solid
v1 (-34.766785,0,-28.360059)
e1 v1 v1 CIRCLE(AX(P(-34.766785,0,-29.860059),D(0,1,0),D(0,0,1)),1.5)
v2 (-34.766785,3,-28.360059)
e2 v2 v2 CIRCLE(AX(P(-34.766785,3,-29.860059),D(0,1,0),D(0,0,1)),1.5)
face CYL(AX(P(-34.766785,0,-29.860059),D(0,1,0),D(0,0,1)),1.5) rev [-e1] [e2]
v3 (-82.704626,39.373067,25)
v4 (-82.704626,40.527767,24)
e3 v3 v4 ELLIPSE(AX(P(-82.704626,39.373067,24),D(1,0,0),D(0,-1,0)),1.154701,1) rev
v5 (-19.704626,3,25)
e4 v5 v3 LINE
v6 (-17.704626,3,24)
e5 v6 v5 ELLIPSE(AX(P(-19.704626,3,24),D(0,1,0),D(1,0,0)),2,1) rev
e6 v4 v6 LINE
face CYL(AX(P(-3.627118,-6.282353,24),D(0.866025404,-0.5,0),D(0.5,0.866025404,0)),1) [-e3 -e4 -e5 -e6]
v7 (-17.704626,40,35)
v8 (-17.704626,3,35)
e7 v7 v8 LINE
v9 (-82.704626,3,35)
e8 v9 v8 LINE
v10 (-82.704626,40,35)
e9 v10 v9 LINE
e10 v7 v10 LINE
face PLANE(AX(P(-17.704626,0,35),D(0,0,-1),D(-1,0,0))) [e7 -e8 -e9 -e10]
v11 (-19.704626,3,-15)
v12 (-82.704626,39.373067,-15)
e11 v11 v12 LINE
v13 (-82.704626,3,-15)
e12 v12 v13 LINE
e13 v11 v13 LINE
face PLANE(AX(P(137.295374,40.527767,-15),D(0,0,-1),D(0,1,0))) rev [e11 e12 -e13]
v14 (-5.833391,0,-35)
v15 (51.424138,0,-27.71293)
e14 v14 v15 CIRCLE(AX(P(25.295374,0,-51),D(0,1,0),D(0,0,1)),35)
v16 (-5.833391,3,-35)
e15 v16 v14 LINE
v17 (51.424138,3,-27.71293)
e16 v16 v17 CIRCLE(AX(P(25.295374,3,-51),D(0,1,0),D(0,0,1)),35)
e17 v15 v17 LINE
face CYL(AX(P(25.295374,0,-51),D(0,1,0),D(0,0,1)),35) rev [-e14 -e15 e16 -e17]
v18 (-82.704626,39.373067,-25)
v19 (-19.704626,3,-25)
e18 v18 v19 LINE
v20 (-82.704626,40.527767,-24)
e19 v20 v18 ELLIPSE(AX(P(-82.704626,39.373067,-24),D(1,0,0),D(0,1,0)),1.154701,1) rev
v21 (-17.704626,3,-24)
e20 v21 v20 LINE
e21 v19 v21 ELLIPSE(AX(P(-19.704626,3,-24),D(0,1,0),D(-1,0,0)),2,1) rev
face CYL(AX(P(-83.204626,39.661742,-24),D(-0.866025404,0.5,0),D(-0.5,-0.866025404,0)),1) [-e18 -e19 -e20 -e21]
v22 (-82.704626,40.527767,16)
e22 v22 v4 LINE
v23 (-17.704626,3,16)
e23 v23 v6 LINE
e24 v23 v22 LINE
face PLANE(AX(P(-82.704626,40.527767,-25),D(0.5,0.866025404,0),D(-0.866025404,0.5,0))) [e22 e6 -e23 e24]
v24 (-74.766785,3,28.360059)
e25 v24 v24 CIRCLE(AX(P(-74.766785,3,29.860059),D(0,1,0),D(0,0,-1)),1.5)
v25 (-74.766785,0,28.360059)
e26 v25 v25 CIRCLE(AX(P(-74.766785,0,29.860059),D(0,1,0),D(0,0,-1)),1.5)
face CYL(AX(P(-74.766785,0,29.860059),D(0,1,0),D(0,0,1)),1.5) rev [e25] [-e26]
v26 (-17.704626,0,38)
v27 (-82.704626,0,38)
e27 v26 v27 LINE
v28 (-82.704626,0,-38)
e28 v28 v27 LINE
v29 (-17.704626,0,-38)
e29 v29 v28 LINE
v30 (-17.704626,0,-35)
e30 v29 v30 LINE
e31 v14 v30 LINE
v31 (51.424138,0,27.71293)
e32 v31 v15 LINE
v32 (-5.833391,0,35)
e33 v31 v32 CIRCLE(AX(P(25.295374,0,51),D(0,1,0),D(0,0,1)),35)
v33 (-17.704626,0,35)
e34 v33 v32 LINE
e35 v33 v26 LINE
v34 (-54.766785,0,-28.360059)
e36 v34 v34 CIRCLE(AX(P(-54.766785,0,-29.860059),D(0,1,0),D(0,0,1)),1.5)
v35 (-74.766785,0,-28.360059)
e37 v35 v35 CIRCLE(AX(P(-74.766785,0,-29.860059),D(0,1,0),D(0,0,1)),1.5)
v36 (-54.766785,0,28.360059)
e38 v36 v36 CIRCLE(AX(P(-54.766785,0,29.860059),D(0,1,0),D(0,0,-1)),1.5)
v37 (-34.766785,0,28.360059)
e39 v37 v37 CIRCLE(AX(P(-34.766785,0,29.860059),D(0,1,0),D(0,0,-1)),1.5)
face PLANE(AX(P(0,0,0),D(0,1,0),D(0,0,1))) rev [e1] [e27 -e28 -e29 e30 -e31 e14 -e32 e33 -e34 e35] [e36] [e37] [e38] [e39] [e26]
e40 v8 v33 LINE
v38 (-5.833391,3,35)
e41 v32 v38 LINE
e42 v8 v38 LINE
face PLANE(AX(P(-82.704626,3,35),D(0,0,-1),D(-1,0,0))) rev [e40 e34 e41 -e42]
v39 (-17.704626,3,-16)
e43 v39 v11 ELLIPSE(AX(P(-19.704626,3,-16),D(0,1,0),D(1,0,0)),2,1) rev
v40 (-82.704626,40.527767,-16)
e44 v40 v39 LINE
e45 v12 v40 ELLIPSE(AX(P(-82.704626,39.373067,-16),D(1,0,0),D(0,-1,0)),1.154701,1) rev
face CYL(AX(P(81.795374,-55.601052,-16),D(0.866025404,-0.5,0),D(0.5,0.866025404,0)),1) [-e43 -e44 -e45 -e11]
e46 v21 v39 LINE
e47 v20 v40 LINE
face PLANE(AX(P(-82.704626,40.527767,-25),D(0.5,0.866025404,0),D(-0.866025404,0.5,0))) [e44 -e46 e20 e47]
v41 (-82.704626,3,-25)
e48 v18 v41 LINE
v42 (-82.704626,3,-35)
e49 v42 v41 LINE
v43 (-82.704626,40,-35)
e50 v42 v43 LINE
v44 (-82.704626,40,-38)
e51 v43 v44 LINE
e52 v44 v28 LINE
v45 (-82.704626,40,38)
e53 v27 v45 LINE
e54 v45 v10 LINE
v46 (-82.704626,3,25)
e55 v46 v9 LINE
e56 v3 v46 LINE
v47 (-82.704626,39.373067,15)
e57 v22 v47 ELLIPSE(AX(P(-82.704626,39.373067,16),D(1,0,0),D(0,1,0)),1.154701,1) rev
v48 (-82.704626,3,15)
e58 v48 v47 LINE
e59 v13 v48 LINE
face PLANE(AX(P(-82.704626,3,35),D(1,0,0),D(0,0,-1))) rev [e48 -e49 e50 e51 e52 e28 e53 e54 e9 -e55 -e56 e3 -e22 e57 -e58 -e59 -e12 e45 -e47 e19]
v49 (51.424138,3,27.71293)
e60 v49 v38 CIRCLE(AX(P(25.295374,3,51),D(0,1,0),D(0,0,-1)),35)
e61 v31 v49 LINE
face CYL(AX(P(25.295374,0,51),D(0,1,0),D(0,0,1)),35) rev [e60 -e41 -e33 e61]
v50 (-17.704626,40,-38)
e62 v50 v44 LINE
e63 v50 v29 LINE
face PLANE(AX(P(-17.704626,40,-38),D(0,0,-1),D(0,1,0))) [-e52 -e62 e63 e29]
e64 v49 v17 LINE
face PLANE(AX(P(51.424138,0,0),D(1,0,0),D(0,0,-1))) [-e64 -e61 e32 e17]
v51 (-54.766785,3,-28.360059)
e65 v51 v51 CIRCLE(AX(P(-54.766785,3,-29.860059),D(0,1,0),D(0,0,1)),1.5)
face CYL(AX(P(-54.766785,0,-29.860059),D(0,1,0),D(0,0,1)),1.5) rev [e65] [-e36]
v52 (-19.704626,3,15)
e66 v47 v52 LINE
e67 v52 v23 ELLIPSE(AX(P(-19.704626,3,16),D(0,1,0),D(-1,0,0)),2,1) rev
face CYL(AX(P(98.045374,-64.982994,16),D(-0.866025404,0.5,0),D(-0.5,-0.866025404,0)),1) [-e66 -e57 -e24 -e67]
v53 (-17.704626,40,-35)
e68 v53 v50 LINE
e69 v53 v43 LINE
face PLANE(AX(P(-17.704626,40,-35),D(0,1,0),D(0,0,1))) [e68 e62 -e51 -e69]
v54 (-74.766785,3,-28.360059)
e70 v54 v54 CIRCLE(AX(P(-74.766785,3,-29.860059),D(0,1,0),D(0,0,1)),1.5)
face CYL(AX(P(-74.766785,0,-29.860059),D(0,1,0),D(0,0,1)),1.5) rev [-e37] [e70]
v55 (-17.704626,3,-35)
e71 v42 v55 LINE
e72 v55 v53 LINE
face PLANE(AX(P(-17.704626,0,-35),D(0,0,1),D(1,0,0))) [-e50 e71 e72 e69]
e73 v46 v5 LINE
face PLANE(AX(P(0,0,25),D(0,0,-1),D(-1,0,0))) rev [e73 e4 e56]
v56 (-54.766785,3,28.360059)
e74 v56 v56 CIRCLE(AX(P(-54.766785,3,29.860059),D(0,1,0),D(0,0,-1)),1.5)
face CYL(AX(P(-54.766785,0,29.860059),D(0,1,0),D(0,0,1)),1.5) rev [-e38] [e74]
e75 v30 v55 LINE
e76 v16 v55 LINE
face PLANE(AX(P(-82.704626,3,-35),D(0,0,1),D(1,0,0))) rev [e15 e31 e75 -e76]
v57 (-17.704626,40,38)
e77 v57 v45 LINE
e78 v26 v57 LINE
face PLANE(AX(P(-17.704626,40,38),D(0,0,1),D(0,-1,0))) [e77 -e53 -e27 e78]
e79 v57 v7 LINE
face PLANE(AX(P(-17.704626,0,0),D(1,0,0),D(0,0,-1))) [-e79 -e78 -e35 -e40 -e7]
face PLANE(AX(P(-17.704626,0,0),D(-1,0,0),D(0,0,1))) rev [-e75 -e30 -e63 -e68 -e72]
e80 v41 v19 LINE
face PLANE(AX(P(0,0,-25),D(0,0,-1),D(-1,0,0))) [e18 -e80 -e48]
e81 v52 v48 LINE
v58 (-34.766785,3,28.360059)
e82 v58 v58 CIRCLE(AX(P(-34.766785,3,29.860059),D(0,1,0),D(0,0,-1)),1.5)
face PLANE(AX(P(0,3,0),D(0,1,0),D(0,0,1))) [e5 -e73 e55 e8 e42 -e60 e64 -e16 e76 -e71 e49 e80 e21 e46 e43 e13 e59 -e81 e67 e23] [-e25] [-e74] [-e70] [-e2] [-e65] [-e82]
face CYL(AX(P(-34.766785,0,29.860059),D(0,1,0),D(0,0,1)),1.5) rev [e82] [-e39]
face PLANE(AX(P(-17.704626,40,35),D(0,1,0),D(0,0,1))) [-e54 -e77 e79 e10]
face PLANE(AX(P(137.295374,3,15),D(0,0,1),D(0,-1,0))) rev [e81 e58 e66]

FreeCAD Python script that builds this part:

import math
import FreeCAD as App
import Part
import Sketcher

V = App.Vector
Q = App.Units.Quantity


def edges_at(feature, points):
    """Names of the edges that pass closest to the given points."""
    edges = feature.Shape.Edges
    near = lambda p: min(range(len(edges)), key=lambda i: edges[i].distToShape(Part.Vertex(*p))[0])
    return sorted({f"Edge{near(p) + 1}" for p in points})


def add_polygon(sketch, points):
    """Adds a closed chain of lines whose ends are joined by coincident constraints."""
    first, n = sketch.GeometryCount, len(points)
    for a, b in zip(points, points[1:] + points[:1]):
        sketch.addGeometry(Part.LineSegment(App.Vector(*a, 0), App.Vector(*b, 0)), False)
    for i in range(n):
        sketch.addConstraint(Sketcher.Constraint("Coincident", first + i, 2, first + (i + 1) % n, 1))

doc = App.newDocument("Part")
body = doc.addObject("PartDesign::Body", "Body")

sketch1 = body.newObject("Sketcher::SketchObject", "Sketch")
sketch1.AttachmentSupport = (doc.getObject("XZ_Plane"), [""])
sketch1.MapMode = "FlatFace"
add_polygon(sketch1, [(-82.704626, -35), (-82.704626, 35), (137.295374, 35), (137.295374, -35)])
sketch1.addConstraint(Sketcher.Constraint("Vertical", 0))
sketch1.addConstraint(Sketcher.Constraint("Horizontal", 1))
sketch1.addConstraint(Sketcher.Constraint("Vertical", 2))
sketch1.addConstraint(Sketcher.Constraint("Horizontal", 3))
sketch1.addConstraint(Sketcher.Constraint("DistanceX", 1, 1, 1, 2, Q("220 mm")))
sketch1.addConstraint(Sketcher.Constraint("DistanceY", 0, 1, 0, 2, Q("70 mm")))
sketch1.addConstraint(Sketcher.Constraint("DistanceY", -1, 1, 0, 2, Q("35 mm")))
sketch1.addConstraint(Sketcher.Constraint("DistanceX", 0, 2, -1, 1, Q("82.704626 mm")))
pad1 = body.newObject("PartDesign::Pad", "Pad")
pad1.Profile = sketch1
pad1.Length = 3
pad1.Reversed = True

sketch2 = body.newObject("Sketcher::SketchObject", "Sketch001")
sketch2.AttachmentSupport = (doc.getObject("XY_Plane"), [""])
sketch2.MapMode = "FlatFace"
add_polygon(sketch2, [(-82.704626, 40.527767), (-82.704626, 3), (-17.704626, 3)])
sketch2.addConstraint(Sketcher.Constraint("Vertical", 0))
sketch2.addConstraint(Sketcher.Constraint("Horizontal", 1))
sketch2.addConstraint(Sketcher.Constraint("DistanceX", 1, 1, 1, 2, Q("65 mm")))
sketch2.addConstraint(Sketcher.Constraint("Angle", 2, Q("150 deg")))
sketch2.addConstraint(Sketcher.Constraint("DistanceY", -1, 1, 0, 2, Q("3 mm")))
sketch2.addConstraint(Sketcher.Constraint("DistanceX", 0, 2, -1, 1, Q("82.704626 mm")))
pad2 = body.newObject("PartDesign::Pad", "Pad001")
pad2.Profile = sketch2
pad2.Type = "TwoLengths"
pad2.Length = 25
pad2.Length2 = 25

sketch3 = body.newObject("Sketcher::SketchObject", "Sketch002")
sketch3.AttachmentSupport = (doc.getObject("YZ_Plane"), [""])
sketch3.MapMode = "FlatFace"
sketch3.AttachmentOffset = App.Placement(V(0, 0, -82.704626), App.Rotation())
add_polygon(sketch3, [(40.527767, -15), (3, -15), (3, 15), (40.527767, 15)])
sketch3.addConstraint(Sketcher.Constraint("Horizontal", 0))
sketch3.addConstraint(Sketcher.Constraint("Vertical", 1))
sketch3.addConstraint(Sketcher.Constraint("Horizontal", 2))
sketch3.addConstraint(Sketcher.Constraint("Vertical", 3))
sketch3.addConstraint(Sketcher.Constraint("DistanceY", 1, 1, 1, 2, Q("30 mm")))
sketch3.addConstraint(Sketcher.Constraint("DistanceX", -1, 1, 0, 2, Q("3 mm")))
sketch3.addConstraint(Sketcher.Constraint("DistanceY", 0, 2, -1, 1, Q("15 mm")))
sketch3.addConstraint(Sketcher.Constraint("DistanceX", 0, 2, 0, 1, Q("37.527767 mm")))
pocket1 = body.newObject("PartDesign::Pocket", "Pocket")
pocket1.Profile = sketch3
pocket1.Type = "ThroughAll"
pocket1.Reversed = True

sketch4 = body.newObject("Sketcher::SketchObject", "Sketch003")
sketch4.AttachmentSupport = (doc.getObject("XZ_Plane"), [""])
sketch4.MapMode = "FlatFace"
sketch4.AttachmentOffset = App.Placement(V(0, 0, -3), App.Rotation())
sketch4.addGeometry(Part.Circle(V(25.295374, -51, 0), V(0, 0, 1), 35), False)
sketch4.addGeometry(Part.Circle(V(25.295374, 51, 0), V(0, 0, 1), 35), False)
sketch4.addConstraint(Sketcher.Constraint("Equal", 0, 1))
sketch4.addConstraint(Sketcher.Constraint("Symmetric", 0, 3, 1, 3, -1))
sketch4.addConstraint(Sketcher.Constraint("Diameter", 0, Q("70 mm")))
sketch4.addConstraint(Sketcher.Constraint("DistanceY", 0, 3, -1, 1, Q("51 mm")))
sketch4.addConstraint(Sketcher.Constraint("DistanceX", -1, 1, 0, 3, Q("25.295374 mm")))
pocket2 = body.newObject("PartDesign::Pocket", "Pocket001")
pocket2.Profile = sketch4
pocket2.Type = "ThroughAll"
pocket2.Reversed = True

sketch5 = body.newObject("Sketcher::SketchObject", "Sketch004")
sketch5.AttachmentSupport = (doc.getObject("YZ_Plane"), [""])
sketch5.MapMode = "FlatFace"
sketch5.AttachmentOffset = App.Placement(V(0, 0, -82.704626), App.Rotation())
add_polygon(sketch5, [(40, 35), (0, 35), (0, 38), (40, 38)])
add_polygon(sketch5, [(40, -38), (0, -38), (0, -35), (40, -35)])
sketch5.addConstraint(Sketcher.Constraint("Horizontal", 0))
sketch5.addConstraint(Sketcher.Constraint("Vertical", 1))
sketch5.addConstraint(Sketcher.Constraint("Horizontal", 2))
sketch5.addConstraint(Sketcher.Constraint("Vertical", 3))
sketch5.addConstraint(Sketcher.Constraint("Horizontal", 4))
sketch5.addConstraint(Sketcher.Constraint("Vertical", 5))
sketch5.addConstraint(Sketcher.Constraint("Horizontal", 6))
sketch5.addConstraint(Sketcher.Constraint("Vertical", 7))
sketch5.addConstraint(Sketcher.Constraint("Symmetric", 1, 2, 4, 2, -1, 1))
sketch5.addConstraint(Sketcher.Constraint("Symmetric", 0, 2, 5, 2, -1))
sketch5.addConstraint(Sketcher.Constraint("Vertical", 3, 2, 6, 2))
sketch5.addConstraint(Sketcher.Constraint("DistanceX", 0, 2, 0, 1, Q("40 mm")))
sketch5.addConstraint(Sketcher.Constraint("DistanceY", 1, 1, 1, 2, Q("3 mm")))
sketch5.addConstraint(Sketcher.Constraint("DistanceY", -1, 1, 0, 2, Q("35 mm")))
pad3 = body.newObject("PartDesign::Pad", "Pad002")
pad3.Profile = sketch5
pad3.Length = 65

sketch6 = body.newObject("Sketcher::SketchObject", "Sketch005")
sketch6.AttachmentSupport = (doc.getObject("XZ_Plane"), [""])
sketch6.MapMode = "FlatFace"
sketch6.AttachmentOffset = App.Placement(V(0, 0, -3), App.Rotation())
sketch6.addGeometry(Part.Circle(V(-74.766785, -29.860059, 0), V(0, 0, 1), 1.5), False)
sketch6.addGeometry(Part.Circle(V(-54.766785, -29.860059, 0), V(0, 0, 1), 1.5), False)
sketch6.addGeometry(Part.Circle(V(-34.766785, -29.860059, 0), V(0, 0, 1), 1.5), False)
sketch6.addGeometry(Part.Circle(V(-34.766785, 29.860059, 0), V(0, 0, 1), 1.5), False)
sketch6.addGeometry(Part.Circle(V(-54.766785, 29.860059, 0), V(0, 0, 1), 1.5), False)
sketch6.addGeometry(Part.Circle(V(-74.766785, 29.860059, 0), V(0, 0, 1), 1.5), False)
sketch6.addGeometry(Part.Circle(V(68.031562, -22, 0), V(0, 0, 1), 1.5), False)
sketch6.addGeometry(Part.Circle(V(88.031562, -22, 0), V(0, 0, 1), 1.5), False)
sketch6.addGeometry(Part.Circle(V(108.031562, -22, 0), V(0, 0, 1), 1.5), False)
sketch6.addGeometry(Part.Circle(V(108.031562, 22, 0), V(0, 0, 1), 1.5), False)
sketch6.addGeometry(Part.Circle(V(88.031562, 22, 0), V(0, 0, 1), 1.5), False)
sketch6.addGeometry(Part.Circle(V(68.031562, 22, 0), V(0, 0, 1), 1.5), False)
sketch6.addGeometry(Part.Circle(V(128.031562, -22, 0), V(0, 0, 1), 1.5), False)
sketch6.addGeometry(Part.Circle(V(128.031562, 22, 0), V(0, 0, 1), 1.5), False)
sketch6.addConstraint(Sketcher.Constraint("Equal", 0, 1))
sketch6.addConstraint(Sketcher.Constraint("Equal", 1, 2))
sketch6.addConstraint(Sketcher.Constraint("Equal", 2, 3))
sketch6.addConstraint(Sketcher.Constraint("Equal", 3, 4))
sketch6.addConstraint(Sketcher.Constraint("Equal", 4, 5))
sketch6.addConstraint(Sketcher.Constraint("Equal", 5, 6))
sketch6.addConstraint(Sketcher.Constraint("Equal", 6, 7))
sketch6.addConstraint(Sketcher.Constraint("Equal", 7, 8))
sketch6.addConstraint(Sketcher.Constraint("Equal", 8, 9))
sketch6.addConstraint(Sketcher.Constraint("Equal", 9, 10))
sketch6.addConstraint(Sketcher.Constraint("Equal", 10, 11))
sketch6.addConstraint(Sketcher.Constraint("Equal", 11, 12))
sketch6.addConstraint(Sketcher.Constraint("Equal", 12, 13))
sketch6.addConstraint(Sketcher.Constraint("Symmetric", 2, 3, 3, 3, -1))
sketch6.addConstraint(Sketcher.Constraint("Symmetric", 1, 3, 4, 3, -1))
sketch6.addConstraint(Sketcher.Constraint("Symmetric", 0, 3, 5, 3, -1))
sketch6.addConstraint(Sketcher.Constraint("Symmetric", 8, 3, 9, 3, -1))
sketch6.addConstraint(Sketcher.Constraint("Symmetric", 7, 3, 10, 3, -1))
sketch6.addConstraint(Sketcher.Constraint("Symmetric", 6, 3, 11, 3, -1))
sketch6.addConstraint(Sketcher.Constraint("Symmetric", 12, 3, 13, 3, -1))
sketch6.addConstraint(Sketcher.Constraint("Horizontal", 0, 3, 1, 3))
sketch6.addConstraint(Sketcher.Constraint("Horizontal", 1, 3, 2, 3))
sketch6.addConstraint(Sketcher.Constraint("Horizontal", 6, 3, 7, 3))
sketch6.addConstraint(Sketcher.Constraint("Horizontal", 7, 3, 8, 3))
sketch6.addConstraint(Sketcher.Constraint("Horizontal", 8, 3, 12, 3))
sketch6.addConstraint(Sketcher.Constraint("Diameter", 0, Q("3 mm")))
sketch6.addConstraint(Sketcher.Constraint("DistanceY", 6, 3, -1, 1, Q("22 mm")))
sketch6.addConstraint(Sketcher.Constraint("DistanceX", 0, 3, 1, 3, Q("20 mm")))
sketch6.addConstraint(Sketcher.Constraint("DistanceX", 1, 3, 2, 3, Q("20 mm")))
sketch6.addConstraint(Sketcher.Constraint("DistanceX", 6, 3, 7, 3, Q("20 mm")))
sketch6.addConstraint(Sketcher.Constraint("DistanceX", 7, 3, 8, 3, Q("20 mm")))
sketch6.addConstraint(Sketcher.Constraint("DistanceX", 8, 3, 12, 3, Q("20 mm")))
sketch6.addConstraint(Sketcher.Constraint("DistanceY", 0, 3, -1, 1, Q("29.860059 mm")))
sketch6.addConstraint(Sketcher.Constraint("DistanceX", 0, 3, -1, 1, Q("74.766785 mm")))
sketch6.addConstraint(Sketcher.Constraint("DistanceX", -1, 1, 6, 3, Q("68.031562 mm")))
pocket3 = body.newObject("PartDesign::Pocket", "Pocket002")
pocket3.Profile = sketch6
pocket3.Type = "ThroughAll"
pocket3.Reversed = True
doc.recompute()

fillet = body.newObject("PartDesign::Fillet", "Fillet")
fillet.Base = (pocket3, edges_at(pocket3, [
    (-50.205, 21.764, -25),
    (-50.205, 21.764, 25),
    (-50.205, 21.764, -15),
    (-50.205, 21.764, 15),
]))
fillet.Radius = 1

sketch7 = body.newObject("Sketcher::SketchObject", "Sketch006")
sketch7.AttachmentSupport = (doc.getObject("XZ_Plane"), [""])
sketch7.MapMode = "FlatFace"
sketch7.AttachmentOffset = App.Placement(V(0, 0, -3), App.Rotation())
sketch7.addGeometry(Part.LineSegment(V(51.424138, -27.71293, 0), V(51.424138, 27.71293, 0)), False)
sketch7.addGeometry(Part.ArcOfCircle(Part.Circle(V(25.295374, 51, 0), V(0, 0, 1), 35), math.radians(-41.708788), math.radians(-27.202894)), False)
sketch7.addGeometry(Part.LineSegment(V(56.424138, 35, 0), V(137.295374, 35, 0)), False)
sketch7.addGeometry(Part.LineSegment(V(137.295374, 35, 0), V(137.295374, -35, 0)), False)
sketch7.addGeometry(Part.LineSegment(V(137.295374, -35, 0), V(56.424138, -35, 0)), False)
sketch7.addGeometry(Part.ArcOfCircle(Part.Circle(V(25.295374, -51, 0), V(0, 0, 1), 35), math.radians(27.202894), math.radians(41.708788)), False)
sketch7.addGeometry(Part.Circle(V(68.031562, 22, 0), V(0, 0, 1), 1.5), False)
sketch7.addGeometry(Part.Circle(V(88.031562, 22, 0), V(0, 0, 1), 1.5), False)
sketch7.addGeometry(Part.Circle(V(108.031562, 22, 0), V(0, 0, 1), 1.5), False)
sketch7.addGeometry(Part.Circle(V(128.031562, 22, 0), V(0, 0, 1), 1.5), False)
sketch7.addGeometry(Part.Circle(V(68.031562, -22, 0), V(0, 0, 1), 1.5), False)
sketch7.addGeometry(Part.Circle(V(88.031562, -22, 0), V(0, 0, 1), 1.5), False)
sketch7.addGeometry(Part.Circle(V(108.031562, -22, 0), V(0, 0, 1), 1.5), False)
sketch7.addGeometry(Part.Circle(V(128.031562, -22, 0), V(0, 0, 1), 1.5), False)
sketch7.addConstraint(Sketcher.Constraint("Coincident", 0, 2, 1, 1))
sketch7.addConstraint(Sketcher.Constraint("Coincident", 1, 2, 2, 1))
sketch7.addConstraint(Sketcher.Constraint("Coincident", 2, 2, 3, 1))
sketch7.addConstraint(Sketcher.Constraint("Coincident", 3, 2, 4, 1))
sketch7.addConstraint(Sketcher.Constraint("Coincident", 4, 2, 5, 1))
sketch7.addConstraint(Sketcher.Constraint("Coincident", 5, 2, 0, 1))
sketch7.addConstraint(Sketcher.Constraint("Vertical", 0))
sketch7.addConstraint(Sketcher.Constraint("Horizontal", 2))
sketch7.addConstraint(Sketcher.Constraint("Vertical", 3))
sketch7.addConstraint(Sketcher.Constraint("Horizontal", 4))
sketch7.addConstraint(Sketcher.Constraint("Equal", 1, 5))
sketch7.addConstraint(Sketcher.Constraint("Equal", 6, 7))
sketch7.addConstraint(Sketcher.Constraint("Equal", 7, 8))
sketch7.addConstraint(Sketcher.Constraint("Equal", 8, 9))
sketch7.addConstraint(Sketcher.Constraint("Equal", 9, 10))
sketch7.addConstraint(Sketcher.Constraint("Equal", 10, 11))
sketch7.addConstraint(Sketcher.Constraint("Equal", 11, 12))
sketch7.addConstraint(Sketcher.Constraint("Equal", 12, 13))
sketch7.addConstraint(Sketcher.Constraint("Symmetric", 1, 3, 5, 3, -1))
sketch7.addConstraint(Sketcher.Constraint("Symmetric", 6, 3, 10, 3, -1))
sketch7.addConstraint(Sketcher.Constraint("Symmetric", 7, 3, 11, 3, -1))
sketch7.addConstraint(Sketcher.Constraint("Symmetric", 8, 3, 12, 3, -1))
sketch7.addConstraint(Sketcher.Constraint("Symmetric", 9, 3, 13, 3, -1))
sketch7.addConstraint(Sketcher.Constraint("Horizontal", 6, 3, 7, 3))
sketch7.addConstraint(Sketcher.Constraint("Horizontal", 7, 3, 8, 3))
sketch7.addConstraint(Sketcher.Constraint("Horizontal", 8, 3, 9, 3))
sketch7.addConstraint(Sketcher.Constraint("Vertical", 1, 2, 4, 2))
sketch7.addConstraint(Sketcher.Constraint("Diameter", 6, Q("3 mm")))
sketch7.addConstraint(Sketcher.Constraint("Radius", 1, Q("35 mm")))
sketch7.addConstraint(Sketcher.Constraint("DistanceY", 3, 2, 3, 1, Q("70 mm")))
sketch7.addConstraint(Sketcher.Constraint("DistanceY", -1, 1, 1, 3, Q("51 mm")))
sketch7.addConstraint(Sketcher.Constraint("DistanceY", -1, 1, 6, 3, Q("22 mm")))
sketch7.addConstraint(Sketcher.Constraint("DistanceX", 6, 3, 7, 3, Q("20 mm")))
sketch7.addConstraint(Sketcher.Constraint("DistanceX", 7, 3, 8, 3, Q("20 mm")))
sketch7.addConstraint(Sketcher.Constraint("DistanceX", 8, 3, 9, 3, Q("20 mm")))
sketch7.addConstraint(Sketcher.Constraint("DistanceX", 0, 2, 1, 2, Q("5 mm")))
sketch7.addConstraint(Sketcher.Constraint("DistanceX", 2, 1, 2, 2, Q("80.871235 mm")))
sketch7.addConstraint(Sketcher.Constraint("DistanceX", -1, 1, 0, 2, Q("51.424138 mm")))
sketch7.addConstraint(Sketcher.Constraint("DistanceX", 1, 3, 6, 3, Q("42.736189 mm")))
pocket4 = body.newObject("PartDesign::Pocket", "Pocket003")
pocket4.Profile = sketch7
pocket4.Type = "ThroughAll"
pocket4.Reversed = True

doc.recompute()
